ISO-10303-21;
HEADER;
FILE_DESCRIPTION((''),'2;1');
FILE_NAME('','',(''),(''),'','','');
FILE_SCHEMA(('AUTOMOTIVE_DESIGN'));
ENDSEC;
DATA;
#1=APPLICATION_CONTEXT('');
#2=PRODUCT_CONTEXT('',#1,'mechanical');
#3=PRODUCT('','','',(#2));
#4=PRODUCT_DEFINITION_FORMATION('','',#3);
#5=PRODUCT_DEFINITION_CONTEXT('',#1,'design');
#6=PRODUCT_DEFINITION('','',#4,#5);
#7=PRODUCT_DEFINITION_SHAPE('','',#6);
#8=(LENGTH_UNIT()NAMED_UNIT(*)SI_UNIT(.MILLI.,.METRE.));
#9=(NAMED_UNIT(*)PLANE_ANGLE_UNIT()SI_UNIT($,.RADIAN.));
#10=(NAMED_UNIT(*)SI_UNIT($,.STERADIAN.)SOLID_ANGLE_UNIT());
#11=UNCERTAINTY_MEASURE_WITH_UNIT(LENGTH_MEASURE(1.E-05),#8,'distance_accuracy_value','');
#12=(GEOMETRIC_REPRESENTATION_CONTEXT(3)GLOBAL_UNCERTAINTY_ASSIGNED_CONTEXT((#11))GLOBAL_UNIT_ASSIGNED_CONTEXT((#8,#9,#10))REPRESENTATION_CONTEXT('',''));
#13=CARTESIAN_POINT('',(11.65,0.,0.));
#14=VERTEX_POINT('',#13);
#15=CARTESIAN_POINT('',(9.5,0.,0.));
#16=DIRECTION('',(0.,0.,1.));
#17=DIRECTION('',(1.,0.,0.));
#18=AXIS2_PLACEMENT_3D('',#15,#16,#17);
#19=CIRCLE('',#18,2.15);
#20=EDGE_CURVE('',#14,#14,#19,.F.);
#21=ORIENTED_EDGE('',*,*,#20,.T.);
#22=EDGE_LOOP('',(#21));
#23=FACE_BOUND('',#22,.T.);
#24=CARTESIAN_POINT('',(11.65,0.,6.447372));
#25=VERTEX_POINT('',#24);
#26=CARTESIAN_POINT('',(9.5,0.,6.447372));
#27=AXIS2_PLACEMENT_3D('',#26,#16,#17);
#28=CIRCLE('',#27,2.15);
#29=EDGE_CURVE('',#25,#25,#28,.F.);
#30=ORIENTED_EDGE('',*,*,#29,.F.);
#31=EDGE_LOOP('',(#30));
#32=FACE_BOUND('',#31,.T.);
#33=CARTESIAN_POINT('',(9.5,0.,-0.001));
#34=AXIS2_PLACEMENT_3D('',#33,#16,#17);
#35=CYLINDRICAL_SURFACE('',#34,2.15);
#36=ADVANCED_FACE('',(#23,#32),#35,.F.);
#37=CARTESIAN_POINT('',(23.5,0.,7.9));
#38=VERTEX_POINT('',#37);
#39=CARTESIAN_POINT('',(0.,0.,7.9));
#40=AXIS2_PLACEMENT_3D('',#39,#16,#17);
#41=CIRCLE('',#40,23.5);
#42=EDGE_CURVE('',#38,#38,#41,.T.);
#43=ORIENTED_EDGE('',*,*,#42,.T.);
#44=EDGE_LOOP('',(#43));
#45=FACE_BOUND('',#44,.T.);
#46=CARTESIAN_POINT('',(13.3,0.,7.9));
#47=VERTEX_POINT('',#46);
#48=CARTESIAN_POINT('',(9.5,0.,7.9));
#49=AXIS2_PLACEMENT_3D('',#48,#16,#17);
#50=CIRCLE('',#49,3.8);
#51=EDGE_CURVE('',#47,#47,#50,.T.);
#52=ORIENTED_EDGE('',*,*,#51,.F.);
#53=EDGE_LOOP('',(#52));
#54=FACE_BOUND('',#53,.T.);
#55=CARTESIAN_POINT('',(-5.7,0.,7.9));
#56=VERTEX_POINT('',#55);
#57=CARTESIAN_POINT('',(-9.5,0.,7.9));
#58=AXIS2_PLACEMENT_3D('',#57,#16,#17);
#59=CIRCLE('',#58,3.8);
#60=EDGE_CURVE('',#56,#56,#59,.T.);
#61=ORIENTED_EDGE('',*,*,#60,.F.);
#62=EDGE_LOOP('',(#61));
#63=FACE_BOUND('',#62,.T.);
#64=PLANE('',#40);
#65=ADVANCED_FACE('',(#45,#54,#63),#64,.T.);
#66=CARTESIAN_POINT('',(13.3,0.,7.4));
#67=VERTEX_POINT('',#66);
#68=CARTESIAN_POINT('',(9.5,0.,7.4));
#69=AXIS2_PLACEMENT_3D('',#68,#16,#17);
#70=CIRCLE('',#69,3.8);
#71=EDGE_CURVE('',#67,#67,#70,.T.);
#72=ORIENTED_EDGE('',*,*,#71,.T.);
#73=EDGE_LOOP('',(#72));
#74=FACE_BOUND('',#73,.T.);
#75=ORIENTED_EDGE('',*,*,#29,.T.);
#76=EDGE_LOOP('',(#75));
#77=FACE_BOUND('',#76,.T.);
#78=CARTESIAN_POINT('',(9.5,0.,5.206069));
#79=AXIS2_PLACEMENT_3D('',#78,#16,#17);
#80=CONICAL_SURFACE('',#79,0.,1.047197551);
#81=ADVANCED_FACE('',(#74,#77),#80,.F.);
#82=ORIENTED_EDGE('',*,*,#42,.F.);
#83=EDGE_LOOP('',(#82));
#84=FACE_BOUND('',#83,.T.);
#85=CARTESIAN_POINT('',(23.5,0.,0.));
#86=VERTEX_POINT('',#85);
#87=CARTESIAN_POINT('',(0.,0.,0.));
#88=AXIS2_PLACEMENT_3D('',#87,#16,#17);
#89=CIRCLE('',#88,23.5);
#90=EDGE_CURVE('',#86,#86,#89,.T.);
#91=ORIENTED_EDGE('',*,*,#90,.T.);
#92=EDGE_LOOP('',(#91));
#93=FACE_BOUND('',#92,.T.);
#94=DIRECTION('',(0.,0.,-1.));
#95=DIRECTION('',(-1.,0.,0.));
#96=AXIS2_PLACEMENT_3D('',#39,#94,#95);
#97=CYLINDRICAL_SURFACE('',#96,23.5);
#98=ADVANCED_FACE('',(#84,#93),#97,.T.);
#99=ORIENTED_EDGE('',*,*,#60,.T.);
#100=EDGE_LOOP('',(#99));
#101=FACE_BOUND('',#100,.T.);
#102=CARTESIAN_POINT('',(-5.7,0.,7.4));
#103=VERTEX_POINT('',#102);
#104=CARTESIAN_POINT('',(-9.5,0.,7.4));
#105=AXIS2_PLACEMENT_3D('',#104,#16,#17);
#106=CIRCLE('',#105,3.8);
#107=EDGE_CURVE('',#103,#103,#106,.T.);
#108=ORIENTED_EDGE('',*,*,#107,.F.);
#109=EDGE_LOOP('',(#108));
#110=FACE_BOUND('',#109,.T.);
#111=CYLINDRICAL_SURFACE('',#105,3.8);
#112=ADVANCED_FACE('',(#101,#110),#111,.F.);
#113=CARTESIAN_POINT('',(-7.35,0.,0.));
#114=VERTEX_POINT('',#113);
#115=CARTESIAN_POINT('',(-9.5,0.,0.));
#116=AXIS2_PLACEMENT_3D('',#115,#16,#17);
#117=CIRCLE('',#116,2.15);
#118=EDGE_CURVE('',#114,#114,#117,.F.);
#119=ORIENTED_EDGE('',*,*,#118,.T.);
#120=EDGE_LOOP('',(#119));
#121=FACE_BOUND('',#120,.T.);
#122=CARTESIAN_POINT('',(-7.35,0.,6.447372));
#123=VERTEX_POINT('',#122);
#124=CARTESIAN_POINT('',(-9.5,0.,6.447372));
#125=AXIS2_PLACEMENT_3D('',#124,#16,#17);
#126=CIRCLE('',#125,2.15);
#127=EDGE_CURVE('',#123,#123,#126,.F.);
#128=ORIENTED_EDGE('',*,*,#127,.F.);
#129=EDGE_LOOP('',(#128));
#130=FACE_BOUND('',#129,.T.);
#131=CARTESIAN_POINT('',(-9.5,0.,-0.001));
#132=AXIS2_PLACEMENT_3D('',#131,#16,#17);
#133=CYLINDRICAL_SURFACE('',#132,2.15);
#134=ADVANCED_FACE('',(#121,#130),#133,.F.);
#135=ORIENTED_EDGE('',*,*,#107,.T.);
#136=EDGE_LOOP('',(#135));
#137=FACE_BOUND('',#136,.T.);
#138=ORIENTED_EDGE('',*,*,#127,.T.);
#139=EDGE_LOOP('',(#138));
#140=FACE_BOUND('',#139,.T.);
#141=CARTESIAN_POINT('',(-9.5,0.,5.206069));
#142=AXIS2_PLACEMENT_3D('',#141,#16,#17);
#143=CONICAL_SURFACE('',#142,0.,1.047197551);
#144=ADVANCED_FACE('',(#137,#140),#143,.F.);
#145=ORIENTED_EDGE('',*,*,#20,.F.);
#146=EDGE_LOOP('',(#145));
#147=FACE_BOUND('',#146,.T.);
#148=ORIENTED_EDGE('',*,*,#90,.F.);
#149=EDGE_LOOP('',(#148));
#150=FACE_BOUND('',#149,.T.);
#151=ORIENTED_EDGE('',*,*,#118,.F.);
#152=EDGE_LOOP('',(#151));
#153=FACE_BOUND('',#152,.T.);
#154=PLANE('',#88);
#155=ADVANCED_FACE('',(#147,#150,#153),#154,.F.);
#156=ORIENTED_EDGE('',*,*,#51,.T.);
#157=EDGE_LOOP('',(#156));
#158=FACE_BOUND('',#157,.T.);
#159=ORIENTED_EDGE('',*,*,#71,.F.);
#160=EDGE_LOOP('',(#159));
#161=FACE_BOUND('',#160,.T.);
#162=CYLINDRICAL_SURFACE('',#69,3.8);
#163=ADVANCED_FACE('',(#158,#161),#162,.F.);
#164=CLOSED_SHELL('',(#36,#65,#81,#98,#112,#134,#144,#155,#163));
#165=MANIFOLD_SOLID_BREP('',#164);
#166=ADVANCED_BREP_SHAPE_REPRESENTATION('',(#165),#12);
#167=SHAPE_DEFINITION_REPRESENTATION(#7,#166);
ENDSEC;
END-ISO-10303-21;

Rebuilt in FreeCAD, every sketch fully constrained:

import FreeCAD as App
import Part
import Sketcher
Q = App.Units.Quantity


def add_polygon(sketch, points):
    """Adds a closed chain of lines whose ends are joined by coincident constraints."""
    first, n = sketch.GeometryCount, len(points)
    for a, b in zip(points, points[1:] + points[:1]):
        sketch.addGeometry(Part.LineSegment(App.Vector(*a, 0), App.Vector(*b, 0)), False)
    for i in range(n):
        sketch.addConstraint(Sketcher.Constraint("Coincident", first + i, 2, first + (i + 1) % n, 1))

doc = App.newDocument("Part")
body = doc.addObject("PartDesign::Body", "Body")

# Sketch on XY plane
sketch1 = body.newObject("Sketcher::SketchObject", "Sketch")
sketch1.AttachmentSupport = (doc.getObject("XY_Plane"), [""])
sketch1.MapMode = "FlatFace"
sketch1.addGeometry(Part.Circle(App.Vector(0, 0, 0), App.Vector(0, 0, 1), 24), False)
sketch1.addConstraint([
    Sketcher.Constraint("Coincident", 0, 3, -1, 1),
    Sketcher.Constraint("Diameter", 0, 47.0),
])
pad1 = body.newObject("PartDesign::Pad", "Pad")
pad1.Profile = sketch1
pad1.Length = 7.9

# Sketch on XY plane
sketch2 = body.newObject("Sketcher::SketchObject", "Sketch001")
sketch2.AttachmentSupport = (doc.getObject("XY_Plane"), [""])
sketch2.MapMode = "FlatFace"
sketch2.AttachmentOffset = App.Placement(App.Vector(0, 0, 7.9), App.Rotation())
sketch2.addGeometry(Part.Circle(App.Vector(-9.5, 0, 0), App.Vector(0, 0, 1), 2.1), False)
sketch2.addConstraint([
    Sketcher.Constraint("PointOnObject", 0, 3, -1),
    Sketcher.Constraint("Diameter", 0, 4.3),
    Sketcher.Constraint("DistanceX", 0, 3, -1, 1, 9.5),
])
pocket1 = body.newObject("PartDesign::Pocket", "Pocket")
pocket1.Profile = sketch2
pocket1.Type = "UpToFirst"

# Sketch on XY plane
sketch3 = body.newObject("Sketcher::SketchObject", "Sketch002")
sketch3.AttachmentSupport = (doc.getObject("XY_Plane"), [""])
sketch3.MapMode = "FlatFace"
sketch3.AttachmentOffset = App.Placement(App.Vector(0, 0, 7.9), App.Rotation())
sketch3.addGeometry(Part.Circle(App.Vector(9.5, 0, 0), App.Vector(0, 0, 1), 2.1), False)
sketch3.addConstraint([
    Sketcher.Constraint("PointOnObject", 0, 3, -1),
    Sketcher.Constraint("Diameter", 0, 4.3),
    Sketcher.Constraint("DistanceX", -1, 1, 0, 3, 9.5),
])
pocket2 = body.newObject("PartDesign::Pocket", "Pocket001")
pocket2.Profile = sketch3
pocket2.Type = "UpToFirst"

# Sketch on XY plane
sketch4 = body.newObject("Sketcher::SketchObject", "Sketch003")
sketch4.AttachmentSupport = (doc.getObject("XY_Plane"), [""])
sketch4.MapMode = "FlatFace"
sketch4.AttachmentOffset = App.Placement(App.Vector(0, 0, 7.9), App.Rotation())
sketch4.addGeometry([
    Part.Circle(App.Vector(-9.5, 0, 0), App.Vector(0, 0, 1), 3.8),
    Part.Circle(App.Vector(9.5, 0, 0), App.Vector(0, 0, 1), 3.8),
], False)
sketch4.addConstraint([
    Sketcher.Constraint("Equal", 0, 1),
    Sketcher.Constraint("Symmetric", 0, 3, 1, 3, -1, 1),
    Sketcher.Constraint("PointOnObject", 0, 3, -1),
    Sketcher.Constraint("Diameter", 0, 7.6),
    Sketcher.Constraint("DistanceX", 0, 3, 1, 3, 19.0),
])
pocket3 = body.newObject("PartDesign::Pocket", "Pocket002")
pocket3.Profile = sketch4
pocket3.Length = 0.5

# Sketch on XZ plane
sketch5 = body.newObject("Sketcher::SketchObject", "Sketch004")
sketch5.AttachmentSupport = (doc.getObject("XZ_Plane"), [""])
sketch5.MapMode = "FlatFace"
add_polygon(sketch5, [(9.5, 7.4), (9.5, 5.2), (5.7, 7.4)])  # lines 0-2
sketch5.addGeometry(Part.LineSegment(App.Vector(9.5, 7.4, 0), App.Vector(9.5, 5.2, 0)), True)  # axis
sketch5.addConstraint([
    Sketcher.Constraint("Vertical", 0),
    Sketcher.Constraint("Horizontal", 2),
    Sketcher.Constraint("Vertical", 3),
    Sketcher.Constraint("Coincident", 3, 1, 2, 2),
    Sketcher.Constraint("Equal", 0, 3),
    Sketcher.Constraint("Angle", 1, Q("150 deg")),
    Sketcher.Constraint("DistanceX", 2, 1, 2, 2, 3.8),
    Sketcher.Constraint("DistanceX", -1, 1, 0, 2, 9.5),
    Sketcher.Constraint("DistanceY", -1, 1, 1, 2, 7.4),
])
groove = body.newObject("PartDesign::Groove", "Groove")
groove.Profile = sketch5
groove.ReferenceAxis = (sketch5, ["Axis0"])
groove.Angle = 360

# Sketch on XZ plane
sketch6 = body.newObject("Sketcher::SketchObject", "Sketch005")
sketch6.AttachmentSupport = (doc.getObject("XZ_Plane"), [""])
sketch6.MapMode = "FlatFace"
add_polygon(sketch6, [(-9.5, 7.4), (-9.5, 5.2), (-13.3, 7.4)])  # lines 0-2
sketch6.addGeometry(Part.LineSegment(App.Vector(-9.5, 7.4, 0), App.Vector(-9.5, 5.2, 0)), True)  # axis
sketch6.addConstraint([
    Sketcher.Constraint("Vertical", 0),
    Sketcher.Constraint("Horizontal", 2),
    Sketcher.Constraint("Vertical", 3),
    Sketcher.Constraint("Coincident", 3, 1, 2, 2),
    Sketcher.Constraint("Equal", 0, 3),
    Sketcher.Constraint("Angle", 1, Q("150 deg")),
    Sketcher.Constraint("DistanceX", 2, 1, 2, 2, 3.8),
    Sketcher.Constraint("DistanceX", 0, 2, -1, 1, 9.5),
    Sketcher.Constraint("DistanceY", -1, 1, 1, 2, 7.4),
])
groove2 = body.newObject("PartDesign::Groove", "Groove001")
groove2.Profile = sketch6
groove2.ReferenceAxis = (sketch6, ["Axis0"])
groove2.Angle = 360

doc.recompute()
